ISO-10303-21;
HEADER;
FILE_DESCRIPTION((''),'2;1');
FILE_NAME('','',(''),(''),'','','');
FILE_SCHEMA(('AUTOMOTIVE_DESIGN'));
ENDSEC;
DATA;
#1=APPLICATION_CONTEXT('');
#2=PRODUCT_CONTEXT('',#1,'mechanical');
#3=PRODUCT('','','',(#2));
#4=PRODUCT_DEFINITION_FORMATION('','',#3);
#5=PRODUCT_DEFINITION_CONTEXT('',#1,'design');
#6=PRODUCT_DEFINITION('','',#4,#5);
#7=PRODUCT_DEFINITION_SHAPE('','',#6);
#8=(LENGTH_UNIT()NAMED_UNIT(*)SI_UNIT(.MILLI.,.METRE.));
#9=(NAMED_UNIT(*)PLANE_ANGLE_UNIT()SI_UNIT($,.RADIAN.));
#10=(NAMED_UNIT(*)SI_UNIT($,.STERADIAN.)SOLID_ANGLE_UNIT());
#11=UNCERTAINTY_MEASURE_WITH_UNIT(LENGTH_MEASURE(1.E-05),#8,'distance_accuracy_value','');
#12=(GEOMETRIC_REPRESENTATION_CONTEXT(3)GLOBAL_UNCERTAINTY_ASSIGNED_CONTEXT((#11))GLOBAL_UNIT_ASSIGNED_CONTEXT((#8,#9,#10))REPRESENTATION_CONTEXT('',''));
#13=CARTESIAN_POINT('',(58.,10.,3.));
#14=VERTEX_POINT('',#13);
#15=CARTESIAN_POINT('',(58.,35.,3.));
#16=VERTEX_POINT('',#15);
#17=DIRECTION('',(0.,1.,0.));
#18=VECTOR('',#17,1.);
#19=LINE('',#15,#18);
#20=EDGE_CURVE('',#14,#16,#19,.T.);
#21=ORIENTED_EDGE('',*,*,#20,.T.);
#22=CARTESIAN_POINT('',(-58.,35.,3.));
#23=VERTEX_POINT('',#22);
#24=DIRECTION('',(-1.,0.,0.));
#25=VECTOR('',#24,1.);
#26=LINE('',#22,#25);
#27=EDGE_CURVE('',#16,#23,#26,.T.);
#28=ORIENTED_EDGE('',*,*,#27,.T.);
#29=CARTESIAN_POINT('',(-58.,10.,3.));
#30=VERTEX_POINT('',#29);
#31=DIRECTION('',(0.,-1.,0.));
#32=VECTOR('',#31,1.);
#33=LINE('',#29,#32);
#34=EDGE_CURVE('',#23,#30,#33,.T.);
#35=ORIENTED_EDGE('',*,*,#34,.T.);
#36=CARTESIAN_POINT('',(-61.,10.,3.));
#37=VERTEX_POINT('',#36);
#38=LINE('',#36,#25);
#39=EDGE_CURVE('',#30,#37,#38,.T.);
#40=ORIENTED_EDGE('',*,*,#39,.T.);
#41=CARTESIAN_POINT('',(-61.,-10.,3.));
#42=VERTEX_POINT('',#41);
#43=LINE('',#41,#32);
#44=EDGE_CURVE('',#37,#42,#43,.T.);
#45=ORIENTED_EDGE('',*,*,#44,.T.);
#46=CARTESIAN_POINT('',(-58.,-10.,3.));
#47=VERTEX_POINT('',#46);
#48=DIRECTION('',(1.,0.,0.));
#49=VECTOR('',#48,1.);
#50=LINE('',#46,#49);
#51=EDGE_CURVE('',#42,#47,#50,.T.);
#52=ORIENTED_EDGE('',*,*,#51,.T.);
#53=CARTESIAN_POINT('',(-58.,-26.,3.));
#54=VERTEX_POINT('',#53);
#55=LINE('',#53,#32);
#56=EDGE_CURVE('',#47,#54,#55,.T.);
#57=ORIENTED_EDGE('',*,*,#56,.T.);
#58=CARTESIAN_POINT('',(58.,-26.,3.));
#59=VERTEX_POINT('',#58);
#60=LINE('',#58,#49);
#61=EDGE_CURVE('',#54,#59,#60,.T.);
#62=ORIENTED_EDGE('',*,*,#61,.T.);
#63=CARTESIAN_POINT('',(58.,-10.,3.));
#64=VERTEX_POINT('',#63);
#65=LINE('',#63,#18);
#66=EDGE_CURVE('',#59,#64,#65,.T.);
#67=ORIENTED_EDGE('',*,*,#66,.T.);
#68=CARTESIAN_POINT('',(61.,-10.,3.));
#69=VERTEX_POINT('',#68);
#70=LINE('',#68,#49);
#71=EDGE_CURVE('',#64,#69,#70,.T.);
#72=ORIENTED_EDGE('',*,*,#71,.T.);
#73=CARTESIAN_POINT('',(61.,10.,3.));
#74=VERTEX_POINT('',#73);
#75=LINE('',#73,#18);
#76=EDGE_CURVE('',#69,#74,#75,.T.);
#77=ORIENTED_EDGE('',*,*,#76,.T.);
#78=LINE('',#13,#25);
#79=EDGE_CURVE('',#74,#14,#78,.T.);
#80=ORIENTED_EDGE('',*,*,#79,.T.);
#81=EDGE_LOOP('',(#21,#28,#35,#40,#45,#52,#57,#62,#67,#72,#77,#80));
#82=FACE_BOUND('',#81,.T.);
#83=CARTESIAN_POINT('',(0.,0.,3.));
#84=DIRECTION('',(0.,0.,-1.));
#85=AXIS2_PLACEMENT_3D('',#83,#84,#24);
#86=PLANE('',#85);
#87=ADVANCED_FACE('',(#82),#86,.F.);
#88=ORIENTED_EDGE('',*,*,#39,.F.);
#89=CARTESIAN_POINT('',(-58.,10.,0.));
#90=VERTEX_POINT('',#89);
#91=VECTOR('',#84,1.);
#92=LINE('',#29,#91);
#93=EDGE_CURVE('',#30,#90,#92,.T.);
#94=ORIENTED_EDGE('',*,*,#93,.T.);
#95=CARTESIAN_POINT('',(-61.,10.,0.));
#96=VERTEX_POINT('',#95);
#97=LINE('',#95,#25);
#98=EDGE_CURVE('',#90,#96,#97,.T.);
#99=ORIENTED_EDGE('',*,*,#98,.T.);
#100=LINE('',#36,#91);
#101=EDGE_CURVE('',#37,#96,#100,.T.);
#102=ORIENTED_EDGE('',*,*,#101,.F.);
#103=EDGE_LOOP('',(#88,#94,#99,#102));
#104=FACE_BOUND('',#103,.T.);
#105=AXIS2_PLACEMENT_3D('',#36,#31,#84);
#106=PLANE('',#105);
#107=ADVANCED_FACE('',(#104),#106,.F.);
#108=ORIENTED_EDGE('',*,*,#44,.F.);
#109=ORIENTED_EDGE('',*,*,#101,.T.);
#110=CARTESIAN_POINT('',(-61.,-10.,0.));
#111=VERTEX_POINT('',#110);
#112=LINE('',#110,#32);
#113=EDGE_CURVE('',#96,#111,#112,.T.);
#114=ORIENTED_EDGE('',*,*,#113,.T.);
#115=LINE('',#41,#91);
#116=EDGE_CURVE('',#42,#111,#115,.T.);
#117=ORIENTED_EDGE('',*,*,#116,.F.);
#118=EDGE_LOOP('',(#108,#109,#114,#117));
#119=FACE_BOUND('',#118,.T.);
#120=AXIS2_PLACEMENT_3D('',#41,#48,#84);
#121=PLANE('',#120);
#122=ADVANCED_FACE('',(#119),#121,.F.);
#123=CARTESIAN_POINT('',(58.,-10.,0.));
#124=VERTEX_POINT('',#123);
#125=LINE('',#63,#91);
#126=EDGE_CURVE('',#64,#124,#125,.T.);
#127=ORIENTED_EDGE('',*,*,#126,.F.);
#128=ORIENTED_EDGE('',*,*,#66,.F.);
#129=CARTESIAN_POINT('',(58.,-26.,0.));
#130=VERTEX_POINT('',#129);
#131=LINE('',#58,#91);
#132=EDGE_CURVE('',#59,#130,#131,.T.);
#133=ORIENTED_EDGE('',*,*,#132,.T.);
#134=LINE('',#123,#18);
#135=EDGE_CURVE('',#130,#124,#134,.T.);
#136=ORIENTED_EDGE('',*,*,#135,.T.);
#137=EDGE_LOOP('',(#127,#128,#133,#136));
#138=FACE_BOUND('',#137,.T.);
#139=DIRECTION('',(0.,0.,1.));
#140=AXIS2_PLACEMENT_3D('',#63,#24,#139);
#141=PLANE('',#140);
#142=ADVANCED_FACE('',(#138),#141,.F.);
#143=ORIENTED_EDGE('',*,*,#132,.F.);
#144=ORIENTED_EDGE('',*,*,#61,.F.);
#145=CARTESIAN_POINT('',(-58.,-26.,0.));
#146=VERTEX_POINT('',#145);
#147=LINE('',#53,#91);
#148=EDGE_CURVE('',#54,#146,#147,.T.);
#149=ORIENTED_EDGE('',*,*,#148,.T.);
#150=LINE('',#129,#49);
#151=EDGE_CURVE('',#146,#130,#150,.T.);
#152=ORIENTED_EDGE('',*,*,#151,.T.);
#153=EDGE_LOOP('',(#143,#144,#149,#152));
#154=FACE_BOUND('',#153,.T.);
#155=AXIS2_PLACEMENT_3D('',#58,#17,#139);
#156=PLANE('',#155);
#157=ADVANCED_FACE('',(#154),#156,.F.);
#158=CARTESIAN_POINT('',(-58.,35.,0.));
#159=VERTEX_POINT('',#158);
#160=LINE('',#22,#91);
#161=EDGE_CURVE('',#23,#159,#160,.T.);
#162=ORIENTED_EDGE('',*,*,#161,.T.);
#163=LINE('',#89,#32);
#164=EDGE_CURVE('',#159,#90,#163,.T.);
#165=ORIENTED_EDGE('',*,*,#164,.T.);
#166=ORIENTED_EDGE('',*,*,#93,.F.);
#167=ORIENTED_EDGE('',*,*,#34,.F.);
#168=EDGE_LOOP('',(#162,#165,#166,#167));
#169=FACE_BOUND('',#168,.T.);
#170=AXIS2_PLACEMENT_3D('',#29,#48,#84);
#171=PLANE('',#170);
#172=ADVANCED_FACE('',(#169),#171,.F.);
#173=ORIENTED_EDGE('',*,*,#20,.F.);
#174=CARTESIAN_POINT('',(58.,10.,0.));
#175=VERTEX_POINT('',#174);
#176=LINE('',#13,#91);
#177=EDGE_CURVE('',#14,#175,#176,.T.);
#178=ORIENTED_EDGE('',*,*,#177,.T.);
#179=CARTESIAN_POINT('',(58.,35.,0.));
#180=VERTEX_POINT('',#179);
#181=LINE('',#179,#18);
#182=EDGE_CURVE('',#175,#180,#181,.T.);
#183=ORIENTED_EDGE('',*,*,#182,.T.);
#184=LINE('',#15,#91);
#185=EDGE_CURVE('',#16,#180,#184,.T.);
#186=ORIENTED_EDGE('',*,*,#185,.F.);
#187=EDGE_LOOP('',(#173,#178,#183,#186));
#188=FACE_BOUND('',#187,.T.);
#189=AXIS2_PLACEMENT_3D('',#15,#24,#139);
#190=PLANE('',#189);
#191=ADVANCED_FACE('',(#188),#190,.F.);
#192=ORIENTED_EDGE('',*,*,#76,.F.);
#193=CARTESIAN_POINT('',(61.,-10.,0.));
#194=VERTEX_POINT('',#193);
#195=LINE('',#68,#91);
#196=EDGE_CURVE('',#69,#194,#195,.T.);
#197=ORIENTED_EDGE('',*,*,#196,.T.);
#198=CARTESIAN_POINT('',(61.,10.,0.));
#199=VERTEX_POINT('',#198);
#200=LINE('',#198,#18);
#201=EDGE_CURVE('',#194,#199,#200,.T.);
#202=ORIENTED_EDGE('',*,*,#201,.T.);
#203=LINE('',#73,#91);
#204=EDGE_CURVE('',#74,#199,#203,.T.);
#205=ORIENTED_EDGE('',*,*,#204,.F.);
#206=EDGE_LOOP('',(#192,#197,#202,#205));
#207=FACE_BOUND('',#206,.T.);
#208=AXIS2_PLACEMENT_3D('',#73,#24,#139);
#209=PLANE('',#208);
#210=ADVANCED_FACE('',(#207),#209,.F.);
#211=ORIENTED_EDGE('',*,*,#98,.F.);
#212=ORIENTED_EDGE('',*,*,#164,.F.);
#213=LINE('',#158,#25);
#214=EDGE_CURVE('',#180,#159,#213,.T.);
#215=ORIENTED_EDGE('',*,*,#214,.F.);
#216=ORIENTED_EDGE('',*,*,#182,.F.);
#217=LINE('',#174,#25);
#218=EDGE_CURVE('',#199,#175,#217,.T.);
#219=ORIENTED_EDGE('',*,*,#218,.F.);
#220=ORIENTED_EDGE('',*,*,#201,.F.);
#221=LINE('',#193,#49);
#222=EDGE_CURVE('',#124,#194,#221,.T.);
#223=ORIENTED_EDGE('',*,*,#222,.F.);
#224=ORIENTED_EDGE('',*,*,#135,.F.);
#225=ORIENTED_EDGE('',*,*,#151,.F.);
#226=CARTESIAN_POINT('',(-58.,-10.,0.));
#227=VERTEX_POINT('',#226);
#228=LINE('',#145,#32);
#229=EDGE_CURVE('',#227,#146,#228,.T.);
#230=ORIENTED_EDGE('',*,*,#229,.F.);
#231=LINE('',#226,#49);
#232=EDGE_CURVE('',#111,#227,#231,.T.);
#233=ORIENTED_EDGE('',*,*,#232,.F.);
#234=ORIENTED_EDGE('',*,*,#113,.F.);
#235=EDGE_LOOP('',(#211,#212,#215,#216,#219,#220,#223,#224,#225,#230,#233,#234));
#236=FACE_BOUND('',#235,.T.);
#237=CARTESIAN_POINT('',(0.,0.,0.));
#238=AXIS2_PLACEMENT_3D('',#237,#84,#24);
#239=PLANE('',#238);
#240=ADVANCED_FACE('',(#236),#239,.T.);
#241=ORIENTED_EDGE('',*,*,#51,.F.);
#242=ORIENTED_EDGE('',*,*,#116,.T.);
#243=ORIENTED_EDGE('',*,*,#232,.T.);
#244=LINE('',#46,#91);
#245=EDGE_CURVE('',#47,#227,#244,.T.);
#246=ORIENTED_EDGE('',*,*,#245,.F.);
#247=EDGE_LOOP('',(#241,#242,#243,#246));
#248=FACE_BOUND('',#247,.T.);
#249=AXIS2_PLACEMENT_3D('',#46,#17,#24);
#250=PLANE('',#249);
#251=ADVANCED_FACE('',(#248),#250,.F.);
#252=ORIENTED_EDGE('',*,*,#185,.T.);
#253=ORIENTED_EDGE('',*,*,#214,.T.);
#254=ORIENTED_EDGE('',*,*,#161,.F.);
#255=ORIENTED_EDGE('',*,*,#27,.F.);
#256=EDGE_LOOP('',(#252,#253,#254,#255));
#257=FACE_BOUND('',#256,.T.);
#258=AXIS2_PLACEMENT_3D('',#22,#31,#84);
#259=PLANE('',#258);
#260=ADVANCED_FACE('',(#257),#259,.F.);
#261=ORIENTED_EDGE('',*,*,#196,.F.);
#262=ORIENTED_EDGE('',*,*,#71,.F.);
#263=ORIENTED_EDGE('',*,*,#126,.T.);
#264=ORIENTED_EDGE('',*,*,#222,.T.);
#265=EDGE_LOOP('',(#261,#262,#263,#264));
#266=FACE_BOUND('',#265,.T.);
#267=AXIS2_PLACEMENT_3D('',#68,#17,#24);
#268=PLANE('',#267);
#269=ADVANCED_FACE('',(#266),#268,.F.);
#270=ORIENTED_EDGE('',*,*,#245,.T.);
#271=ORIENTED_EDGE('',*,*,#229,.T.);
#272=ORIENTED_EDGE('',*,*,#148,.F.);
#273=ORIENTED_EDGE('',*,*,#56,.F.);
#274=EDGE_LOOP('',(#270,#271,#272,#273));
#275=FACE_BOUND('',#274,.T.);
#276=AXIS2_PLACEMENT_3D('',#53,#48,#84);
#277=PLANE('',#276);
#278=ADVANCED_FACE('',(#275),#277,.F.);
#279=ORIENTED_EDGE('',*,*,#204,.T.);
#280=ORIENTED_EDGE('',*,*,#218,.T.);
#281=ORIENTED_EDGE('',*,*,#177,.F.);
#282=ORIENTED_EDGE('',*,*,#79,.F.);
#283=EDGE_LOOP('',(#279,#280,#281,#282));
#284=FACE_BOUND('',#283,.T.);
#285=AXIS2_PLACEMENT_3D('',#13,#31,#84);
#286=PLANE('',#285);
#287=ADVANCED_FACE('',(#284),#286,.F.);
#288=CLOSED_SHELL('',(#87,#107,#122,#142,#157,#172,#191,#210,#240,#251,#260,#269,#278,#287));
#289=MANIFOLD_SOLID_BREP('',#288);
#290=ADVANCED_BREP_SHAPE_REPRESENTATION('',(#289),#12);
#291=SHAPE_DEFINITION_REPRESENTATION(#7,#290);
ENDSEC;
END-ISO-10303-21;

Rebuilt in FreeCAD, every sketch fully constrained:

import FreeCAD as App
import Part
import Sketcher

doc = App.newDocument("Part")
body = doc.addObject("PartDesign::Body", "Body")

# Sketch on XY plane
sketch1 = body.newObject("Sketcher::SketchObject", "Sketch")
sketch1.AttachmentSupport = (doc.getObject("XY_Plane"), [""])
sketch1.MapMode = "FlatFace"
sketch1.addGeometry([
    Part.LineSegment(App.Vector(58, 35, 0), App.Vector(-58, 35, 0)),  # 0
    Part.LineSegment(App.Vector(-58, 35, 0), App.Vector(-58, 10, 0)),  # 1
    Part.LineSegment(App.Vector(-58, 10, 0), App.Vector(-61, 10, 0)),  # 2
    Part.LineSegment(App.Vector(-61, 10, 0), App.Vector(-61, -10, 0)),  # 3
    Part.LineSegment(App.Vector(-61, -10, 0), App.Vector(-58, -10, 0)),  # 4
    Part.LineSegment(App.Vector(-58, -10, 0), App.Vector(-58, -26, 0)),  # 5
    Part.LineSegment(App.Vector(-58, -26, 0), App.Vector(58, -26, 0)),  # 6
    Part.LineSegment(App.Vector(58, -26, 0), App.Vector(58, -10, 0)),  # 7
    Part.LineSegment(App.Vector(58, -10, 0), App.Vector(61, -10, 0)),  # 8
    Part.LineSegment(App.Vector(61, -10, 0), App.Vector(61, 10, 0)),  # 9
    Part.LineSegment(App.Vector(61, 10, 0), App.Vector(58, 10, 0)),  # 10
    Part.LineSegment(App.Vector(58, 10, 0), App.Vector(58, 35, 0)),  # 11
], False)
sketch1.addConstraint([
    Sketcher.Constraint("Coincident", 0, 2, 1, 1),
    Sketcher.Constraint("Coincident", 1, 2, 2, 1),
    Sketcher.Constraint("Coincident", 2, 2, 3, 1),
    Sketcher.Constraint("Coincident", 3, 2, 4, 1),
    Sketcher.Constraint("Coincident", 4, 2, 5, 1),
    Sketcher.Constraint("Coincident", 5, 2, 6, 1),
    Sketcher.Constraint("Coincident", 6, 2, 7, 1),
    Sketcher.Constraint("Coincident", 7, 2, 8, 1),
    Sketcher.Constraint("Coincident", 8, 2, 9, 1),
    Sketcher.Constraint("Coincident", 9, 2, 10, 1),
    Sketcher.Constraint("Coincident", 10, 2, 11, 1),
    Sketcher.Constraint("Coincident", 11, 2, 0, 1),
    Sketcher.Constraint("Horizontal", 0),
    Sketcher.Constraint("Vertical", 1),
    Sketcher.Constraint("Horizontal", 2),
    Sketcher.Constraint("Vertical", 3),
    Sketcher.Constraint("Horizontal", 4),
    Sketcher.Constraint("Vertical", 5),
    Sketcher.Constraint("Horizontal", 6),
    Sketcher.Constraint("Vertical", 7),
    Sketcher.Constraint("Horizontal", 8),
    Sketcher.Constraint("Vertical", 9),
    Sketcher.Constraint("Horizontal", 10),
    Sketcher.Constraint("Vertical", 11),
    Sketcher.Constraint("Symmetric", 1, 2, 7, 2, -1, 1),
    Sketcher.Constraint("Symmetric", 3, 2, 9, 2, -1, 1),
    Sketcher.Constraint("Symmetric", 4, 2, 7, 2, -2),
    Sketcher.Constraint("Vertical", 7, 2, 10, 2),
    Sketcher.Constraint("DistanceX", 0, 2, 0, 1, 116.0),
    Sketcher.Constraint("DistanceX", 2, 2, 2, 1, 3.0),
    Sketcher.Constraint("DistanceY", 1, 2, 1, 1, 25.0),
    Sketcher.Constraint("DistanceY", 3, 2, 3, 1, 20.0),
    Sketcher.Constraint("DistanceY", 5, 2, 5, 1, 16.0),
])
pad1 = body.newObject("PartDesign::Pad", "Pad")
pad1.Profile = sketch1
pad1.Length = 3

doc.recompute()
